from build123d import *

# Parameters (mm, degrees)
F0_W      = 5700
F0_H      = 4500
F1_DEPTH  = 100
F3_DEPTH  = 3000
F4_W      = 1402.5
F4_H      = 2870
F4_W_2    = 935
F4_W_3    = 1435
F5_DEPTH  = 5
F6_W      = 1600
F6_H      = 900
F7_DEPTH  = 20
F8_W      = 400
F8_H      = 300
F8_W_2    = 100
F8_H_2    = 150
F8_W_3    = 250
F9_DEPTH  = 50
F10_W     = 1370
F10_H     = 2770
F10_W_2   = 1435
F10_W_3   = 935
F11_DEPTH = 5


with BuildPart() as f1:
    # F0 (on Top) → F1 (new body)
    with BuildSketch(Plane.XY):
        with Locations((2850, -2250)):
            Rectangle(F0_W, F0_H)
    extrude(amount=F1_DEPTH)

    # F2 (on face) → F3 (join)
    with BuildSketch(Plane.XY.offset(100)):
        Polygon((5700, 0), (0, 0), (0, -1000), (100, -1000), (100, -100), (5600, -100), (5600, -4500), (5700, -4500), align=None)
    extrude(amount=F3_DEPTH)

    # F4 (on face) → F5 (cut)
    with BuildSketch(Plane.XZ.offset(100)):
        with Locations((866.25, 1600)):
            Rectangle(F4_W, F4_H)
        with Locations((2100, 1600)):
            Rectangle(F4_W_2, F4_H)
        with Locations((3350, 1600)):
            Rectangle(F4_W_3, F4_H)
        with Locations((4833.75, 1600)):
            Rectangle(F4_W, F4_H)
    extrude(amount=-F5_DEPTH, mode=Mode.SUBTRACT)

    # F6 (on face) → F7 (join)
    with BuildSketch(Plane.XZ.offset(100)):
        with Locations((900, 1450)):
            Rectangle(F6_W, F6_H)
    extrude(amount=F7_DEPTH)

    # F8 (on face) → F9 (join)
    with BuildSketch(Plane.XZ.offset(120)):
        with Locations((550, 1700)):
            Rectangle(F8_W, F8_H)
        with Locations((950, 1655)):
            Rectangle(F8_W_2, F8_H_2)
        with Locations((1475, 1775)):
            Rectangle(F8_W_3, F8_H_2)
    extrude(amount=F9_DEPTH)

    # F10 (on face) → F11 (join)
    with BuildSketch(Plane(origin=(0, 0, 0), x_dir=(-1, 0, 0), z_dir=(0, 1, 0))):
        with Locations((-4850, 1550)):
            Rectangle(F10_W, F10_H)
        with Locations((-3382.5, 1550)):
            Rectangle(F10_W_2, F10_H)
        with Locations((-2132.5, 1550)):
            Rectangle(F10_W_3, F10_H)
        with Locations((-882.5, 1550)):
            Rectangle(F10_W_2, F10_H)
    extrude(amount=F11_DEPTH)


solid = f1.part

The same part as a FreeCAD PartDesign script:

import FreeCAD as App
import Part
import Sketcher
from FreeCAD import Vector

doc = App.newDocument("Part")
body = doc.addObject("PartDesign::Body", "Body")

# Sketch on XY plane
sketch1 = body.newObject("Sketcher::SketchObject", "Sketch")
sketch1.AttachmentSupport = (doc.getObject("XY_Plane"), [""])
sketch1.MapMode = "FlatFace"
sketch1.addGeometry([
    Part.LineSegment(Vector(0, 0, 0), Vector(0, -4500, 0)),
    Part.LineSegment(Vector(0, -4500, 0), Vector(5700, -4500, 0)),
    Part.LineSegment(Vector(5700, -4500, 0), Vector(5700, 0, 0)),
    Part.LineSegment(Vector(5700, 0, 0), Vector(0, 0, 0)),
], False)
sketch1.addConstraint([
    Sketcher.Constraint("Coincident", 0, 2, 1, 1),
    Sketcher.Constraint("Coincident", 1, 2, 2, 1),
    Sketcher.Constraint("Coincident", 2, 2, 3, 1),
    Sketcher.Constraint("Coincident", 3, 2, 0, 1),
    Sketcher.Constraint("Vertical", 0),
    Sketcher.Constraint("Horizontal", 1),
    Sketcher.Constraint("Vertical", 2),
    Sketcher.Constraint("Horizontal", 3),
    Sketcher.Constraint("Coincident", 3, 2, -1, 1),
    Sketcher.Constraint("DistanceX", 1, 1, 1, 2, 5700.0),
    Sketcher.Constraint("DistanceY", 0, 2, 0, 1, 4500.0),
])
pad1 = body.newObject("PartDesign::Pad", "Pad")
pad1.Profile = sketch1
pad1.Length = 100

# Sketch on XY plane
sketch2 = body.newObject("Sketcher::SketchObject", "Sketch001")
sketch2.AttachmentSupport = (doc.getObject("XY_Plane"), [""])
sketch2.MapMode = "FlatFace"
sketch2.AttachmentOffset = App.Placement(Vector(0, 0, 100), App.Rotation())
sketch2.addGeometry([
    Part.LineSegment(Vector(5700, 0, 0), Vector(0, 0, 0)),  # 0
    Part.LineSegment(Vector(0, 0, 0), Vector(0, -1000, 0)),  # 1
    Part.LineSegment(Vector(0, -1000, 0), Vector(100, -1000, 0)),  # 2
    Part.LineSegment(Vector(100, -1000, 0), Vector(100, -100, 0)),  # 3
    Part.LineSegment(Vector(100, -100, 0), Vector(5600, -100, 0)),  # 4
    Part.LineSegment(Vector(5600, -100, 0), Vector(5600, -4500, 0)),  # 5
    Part.LineSegment(Vector(5600, -4500, 0), Vector(5700, -4500, 0)),  # 6
    Part.LineSegment(Vector(5700, -4500, 0), Vector(5700, 0, 0)),  # 7
], False)
sketch2.addConstraint([
    Sketcher.Constraint("Coincident", 0, 2, 1, 1),
    Sketcher.Constraint("Coincident", 1, 2, 2, 1),
    Sketcher.Constraint("Coincident", 2, 2, 3, 1),
    Sketcher.Constraint("Coincident", 3, 2, 4, 1),
    Sketcher.Constraint("Coincident", 4, 2, 5, 1),
    Sketcher.Constraint("Coincident", 5, 2, 6, 1),
    Sketcher.Constraint("Coincident", 6, 2, 7, 1),
    Sketcher.Constraint("Coincident", 7, 2, 0, 1),
    Sketcher.Constraint("Horizontal", 0),
    Sketcher.Constraint("Vertical", 1),
    Sketcher.Constraint("Horizontal", 2),
    Sketcher.Constraint("Vertical", 3),
    Sketcher.Constraint("Horizontal", 4),
    Sketcher.Constraint("Vertical", 5),
    Sketcher.Constraint("Horizontal", 6),
    Sketcher.Constraint("Vertical", 7),
    Sketcher.Constraint("Coincident", 0, 2, -1, 1),
    Sketcher.Constraint("Equal", 2, 6),
    Sketcher.Constraint("DistanceX", 0, 2, 0, 1, 5700.0),
    Sketcher.Constraint("DistanceX", 2, 1, 2, 2, 100.0),
    Sketcher.Constraint("DistanceY", 1, 2, 1, 1, 1000.0),
    Sketcher.Constraint("DistanceY", 3, 1, 3, 2, 900.0),
    Sketcher.Constraint("DistanceY", 5, 2, 5, 1, 4400.0),
])
pad2 = body.newObject("PartDesign::Pad", "Pad001")
pad2.Profile = sketch2
pad2.Length = 3000

# Sketch on XZ plane
sketch3 = body.newObject("Sketcher::SketchObject", "Sketch002")
sketch3.AttachmentSupport = (doc.getObject("XZ_Plane"), [""])
sketch3.MapMode = "FlatFace"
sketch3.AttachmentOffset = App.Placement(Vector(0, 0, 100), App.Rotation())
sketch3.addGeometry([
    Part.LineSegment(Vector(165, 3035, 0), Vector(165, 165, 0)),  # 0
    Part.LineSegment(Vector(165, 165, 0), Vector(1568, 165, 0)),  # 1
    Part.LineSegment(Vector(1568, 165, 0), Vector(1568, 3035, 0)),  # 2
    Part.LineSegment(Vector(1568, 3035, 0), Vector(165, 3035, 0)),  # 3
    Part.LineSegment(Vector(1632, 3035, 0), Vector(1632, 165, 0)),  # 4
    Part.LineSegment(Vector(1632, 165, 0), Vector(2568, 165, 0)),  # 5
    Part.LineSegment(Vector(2568, 165, 0), Vector(2568, 3035, 0)),  # 6
    Part.LineSegment(Vector(2568, 3035, 0), Vector(1632, 3035, 0)),  # 7
    Part.LineSegment(Vector(2632, 3035, 0), Vector(2632, 165, 0)),  # 8
    Part.LineSegment(Vector(2632, 165, 0), Vector(4068, 165, 0)),  # 9
    Part.LineSegment(Vector(4068, 165, 0), Vector(4068, 3035, 0)),  # 10
    Part.LineSegment(Vector(4068, 3035, 0), Vector(2632, 3035, 0)),  # 11
    Part.LineSegment(Vector(4132, 3035, 0), Vector(4132, 165, 0)),  # 12
    Part.LineSegment(Vector(4132, 165, 0), Vector(5535, 165, 0)),  # 13
    Part.LineSegment(Vector(5535, 165, 0), Vector(5535, 3035, 0)),  # 14
    Part.LineSegment(Vector(5535, 3035, 0), Vector(4132, 3035, 0)),  # 15
], False)
sketch3.addConstraint([
    Sketcher.Constraint("Coincident", 0, 2, 1, 1),
    Sketcher.Constraint("Coincident", 1, 2, 2, 1),
    Sketcher.Constraint("Coincident", 2, 2, 3, 1),
    Sketcher.Constraint("Coincident", 3, 2, 0, 1),
    Sketcher.Constraint("Coincident", 4, 2, 5, 1),
    Sketcher.Constraint("Coincident", 5, 2, 6, 1),
    Sketcher.Constraint("Coincident", 6, 2, 7, 1),
    Sketcher.Constraint("Coincident", 7, 2, 4, 1),
    Sketcher.Constraint("Coincident", 8, 2, 9, 1),
    Sketcher.Constraint("Coincident", 9, 2, 10, 1),
    Sketcher.Constraint("Coincident", 10, 2, 11, 1),
    Sketcher.Constraint("Coincident", 11, 2, 8, 1),
    Sketcher.Constraint("Coincident", 12, 2, 13, 1),
    Sketcher.Constraint("Coincident", 13, 2, 14, 1),
    Sketcher.Constraint("Coincident", 14, 2, 15, 1),
    Sketcher.Constraint("Coincident", 15, 2, 12, 1),
    Sketcher.Constraint("Vertical", 0),
    Sketcher.Constraint("Horizontal", 1),
    Sketcher.Constraint("Vertical", 2),
    Sketcher.Constraint("Horizontal", 3),
    Sketcher.Constraint("Vertical", 4),
    Sketcher.Constraint("Horizontal", 5),
    Sketcher.Constraint("Vertical", 6),
    Sketcher.Constraint("Horizontal", 7),
    Sketcher.Constraint("Vertical", 8),
    Sketcher.Constraint("Horizontal", 9),
    Sketcher.Constraint("Vertical", 10),
    Sketcher.Constraint("Horizontal", 11),
    Sketcher.Constraint("Vertical", 12),
    Sketcher.Constraint("Horizontal", 13),
    Sketcher.Constraint("Vertical", 14),
    Sketcher.Constraint("Horizontal", 15),
    Sketcher.Constraint("Horizontal", 1, 2, 4, 2),
    Sketcher.Constraint("Horizontal", 3, 2, 6, 2),
    Sketcher.Constraint("Horizontal", 5, 2, 8, 2),
    Sketcher.Constraint("Horizontal", 7, 2, 10, 2),
    Sketcher.Constraint("Horizontal", 9, 2, 12, 2),
    Sketcher.Constraint("Horizontal", 11, 2, 14, 2),
    Sketcher.Constraint("Equal", 3, 13),
    Sketcher.Constraint("DistanceX", 5, 1, 5, 2, 935.0),
    Sketcher.Constraint("DistanceX", 9, 1, 9, 2, 1435.0),
    Sketcher.Constraint("DistanceY", 0, 2, 0, 1, 2870.0),
    Sketcher.Constraint("DistanceX", 1, 1, 1, 2, 1402.5),
    Sketcher.Constraint("DistanceX", -1, 1, 0, 2, 165.0),
    Sketcher.Constraint("DistanceY", -1, 1, 0, 2, 165.0),
    Sketcher.Constraint("DistanceX", -1, 1, 13, 2, 5535.0),
    Sketcher.Constraint("DistanceX", 1, 2, 4, 2, 65.0),
    Sketcher.Constraint("DistanceX", 5, 2, 8, 2, 65.0),
])
pocket1 = body.newObject("PartDesign::Pocket", "Pocket")
pocket1.Profile = sketch3
pocket1.Length = 5

# Sketch on XZ plane
sketch4 = body.newObject("Sketcher::SketchObject", "Sketch003")
sketch4.AttachmentSupport = (doc.getObject("XZ_Plane"), [""])
sketch4.MapMode = "FlatFace"
sketch4.AttachmentOffset = App.Placement(Vector(0, 0, 100), App.Rotation())
sketch4.addGeometry([
    Part.LineSegment(Vector(100, 1900, 0), Vector(100, 1000, 0)),
    Part.LineSegment(Vector(100, 1000, 0), Vector(1700, 1000, 0)),
    Part.LineSegment(Vector(1700, 1000, 0), Vector(1700, 1900, 0)),
    Part.LineSegment(Vector(1700, 1900, 0), Vector(100, 1900, 0)),
], False)
sketch4.addConstraint([
    Sketcher.Constraint("Coincident", 0, 2, 1, 1),
    Sketcher.Constraint("Coincident", 1, 2, 2, 1),
    Sketcher.Constraint("Coincident", 2, 2, 3, 1),
    Sketcher.Constraint("Coincident", 3, 2, 0, 1),
    Sketcher.Constraint("Vertical", 0),
    Sketcher.Constraint("Horizontal", 1),
    Sketcher.Constraint("Vertical", 2),
    Sketcher.Constraint("Horizontal", 3),
    Sketcher.Constraint("DistanceX", 1, 1, 1, 2, 1600.0),
    Sketcher.Constraint("DistanceY", 0, 2, 0, 1, 900.0),
    Sketcher.Constraint("DistanceX", -1, 1, 0, 2, 100.0),
    Sketcher.Constraint("DistanceY", -1, 1, 0, 2, 1000.0),
])
pad3 = body.newObject("PartDesign::Pad", "Pad002")
pad3.Profile = sketch4
pad3.Length = 20

# Sketch on XZ plane
sketch5 = body.newObject("Sketcher::SketchObject", "Sketch004")
sketch5.AttachmentSupport = (doc.getObject("XZ_Plane"), [""])
sketch5.MapMode = "FlatFace"
sketch5.AttachmentOffset = App.Placement(Vector(0, 0, 120), App.Rotation())
sketch5.addGeometry([
    Part.LineSegment(Vector(350, 1850, 0), Vector(350, 1550, 0)),  # 0
    Part.LineSegment(Vector(350, 1550, 0), Vector(750, 1550, 0)),  # 1
    Part.LineSegment(Vector(750, 1550, 0), Vector(750, 1850, 0)),  # 2
    Part.LineSegment(Vector(750, 1850, 0), Vector(350, 1850, 0)),  # 3
    Part.LineSegment(Vector(900, 1730, 0), Vector(900, 1580, 0)),  # 4
    Part.LineSegment(Vector(900, 1580, 0), Vector(1000, 1580, 0)),  # 5
    Part.LineSegment(Vector(1000, 1580, 0), Vector(1000, 1730, 0)),  # 6
    Part.LineSegment(Vector(1000, 1730, 0), Vector(900, 1730, 0)),  # 7
    Part.LineSegment(Vector(1350, 1850, 0), Vector(1350, 1700, 0)),  # 8
    Part.LineSegment(Vector(1350, 1700, 0), Vector(1600, 1700, 0)),  # 9
    Part.LineSegment(Vector(1600, 1700, 0), Vector(1600, 1850, 0)),  # 10
    Part.LineSegment(Vector(1600, 1850, 0), Vector(1350, 1850, 0)),  # 11
], False)
sketch5.addConstraint([
    Sketcher.Constraint("Coincident", 0, 2, 1, 1),
    Sketcher.Constraint("Coincident", 1, 2, 2, 1),
    Sketcher.Constraint("Coincident", 2, 2, 3, 1),
    Sketcher.Constraint("Coincident", 3, 2, 0, 1),
    Sketcher.Constraint("Coincident", 4, 2, 5, 1),
    Sketcher.Constraint("Coincident", 5, 2, 6, 1),
    Sketcher.Constraint("Coincident", 6, 2, 7, 1),
    Sketcher.Constraint("Coincident", 7, 2, 4, 1),
    Sketcher.Constraint("Coincident", 8, 2, 9, 1),
    Sketcher.Constraint("Coincident", 9, 2, 10, 1),
    Sketcher.Constraint("Coincident", 10, 2, 11, 1),
    Sketcher.Constraint("Coincident", 11, 2, 8, 1),
    Sketcher.Constraint("Vertical", 0),
    Sketcher.Constraint("Horizontal", 1),
    Sketcher.Constraint("Vertical", 2),
    Sketcher.Constraint("Horizontal", 3),
    Sketcher.Constraint("Vertical", 4),
    Sketcher.Constraint("Horizontal", 5),
    Sketcher.Constraint("Vertical", 6),
    Sketcher.Constraint("Horizontal", 7),
    Sketcher.Constraint("Vertical", 8),
    Sketcher.Constraint("Horizontal", 9),
    Sketcher.Constraint("Vertical", 10),
    Sketcher.Constraint("Horizontal", 11),
    Sketcher.Constraint("Horizontal", 3, 2, 10, 2),
    Sketcher.Constraint("Equal", 6, 8),
    Sketcher.Constraint("DistanceX", 1, 1, 1, 2, 400.0),
    Sketcher.Constraint("DistanceX", 5, 1, 5, 2, 100.0),
    Sketcher.Constraint("DistanceX", 9, 1, 9, 2, 250.0),
    Sketcher.Constraint("DistanceY", 0, 2, 0, 1, 300.0),
    Sketcher.Constraint("DistanceY", 4, 2, 4, 1, 150.0),
    Sketcher.Constraint("DistanceX", -1, 1, 0, 2, 350.0),
    Sketcher.Constraint("DistanceY", -1, 1, 0, 2, 1550.0),
    Sketcher.Constraint("DistanceX", -1, 1, 4, 2, 900.0),
    Sketcher.Constraint("DistanceY", -1, 1, 4, 2, 1580.0),
    Sketcher.Constraint("DistanceX", -1, 1, 8, 2, 1350.0),
])
pad4 = body.newObject("PartDesign::Pad", "Pad003")
pad4.Profile = sketch5
pad4.Length = 50

# Sketch on XZ plane
sketch6 = body.newObject("Sketcher::SketchObject", "Sketch005")
sketch6.AttachmentSupport = (doc.getObject("XZ_Plane"), [""])
sketch6.MapMode = "FlatFace"
sketch6.addGeometry([
    Part.LineSegment(Vector(5535, 2935, 0), Vector(5535, 165, 0)),  # 0
    Part.LineSegment(Vector(5535, 165, 0), Vector(4165, 165, 0)),  # 1
    Part.LineSegment(Vector(4165, 165, 0), Vector(4165, 2935, 0)),  # 2
    Part.LineSegment(Vector(4165, 2935, 0), Vector(5535, 2935, 0)),  # 3
    Part.LineSegment(Vector(4100, 2935, 0), Vector(4100, 165, 0)),  # 4
    Part.LineSegment(Vector(4100, 165, 0), Vector(2665, 165, 0)),  # 5
    Part.LineSegment(Vector(2665, 165, 0), Vector(2665, 2935, 0)),  # 6
    Part.LineSegment(Vector(2665, 2935, 0), Vector(4100, 2935, 0)),  # 7
    Part.LineSegment(Vector(2600, 2935, 0), Vector(2600, 165, 0)),  # 8
    Part.LineSegment(Vector(2600, 165, 0), Vector(1665, 165, 0)),  # 9
    Part.LineSegment(Vector(1665, 165, 0), Vector(1665, 2935, 0)),  # 10
    Part.LineSegment(Vector(1665, 2935, 0), Vector(2600, 2935, 0)),  # 11
    Part.LineSegment(Vector(1600, 2935, 0), Vector(1600, 165, 0)),  # 12
    Part.LineSegment(Vector(1600, 165, 0), Vector(165, 165, 0)),  # 13
    Part.LineSegment(Vector(165, 165, 0), Vector(165, 2935, 0)),  # 14
    Part.LineSegment(Vector(165, 2935, 0), Vector(1600, 2935, 0)),  # 15
], False)
sketch6.addConstraint([
    Sketcher.Constraint("Coincident", 0, 2, 1, 1),
    Sketcher.Constraint("Coincident", 1, 2, 2, 1),
    Sketcher.Constraint("Coincident", 2, 2, 3, 1),
    Sketcher.Constraint("Coincident", 3, 2, 0, 1),
    Sketcher.Constraint("Coincident", 4, 2, 5, 1),
    Sketcher.Constraint("Coincident", 5, 2, 6, 1),
    Sketcher.Constraint("Coincident", 6, 2, 7, 1),
    Sketcher.Constraint("Coincident", 7, 2, 4, 1),
    Sketcher.Constraint("Coincident", 8, 2, 9, 1),
    Sketcher.Constraint("Coincident", 9, 2, 10, 1),
    Sketcher.Constraint("Coincident", 10, 2, 11, 1),
    Sketcher.Constraint("Coincident", 11, 2, 8, 1),
    Sketcher.Constraint("Coincident", 12, 2, 13, 1),
    Sketcher.Constraint("Coincident", 13, 2, 14, 1),
    Sketcher.Constraint("Coincident", 14, 2, 15, 1),
    Sketcher.Constraint("Coincident", 15, 2, 12, 1),
    Sketcher.Constraint("Vertical", 0),
    Sketcher.Constraint("Horizontal", 1),
    Sketcher.Constraint("Vertical", 2),
    Sketcher.Constraint("Horizontal", 3),
    Sketcher.Constraint("Vertical", 4),
    Sketcher.Constraint("Horizontal", 5),
    Sketcher.Constraint("Vertical", 6),
    Sketcher.Constraint("Horizontal", 7),
    Sketcher.Constraint("Vertical", 8),
    Sketcher.Constraint("Horizontal", 9),
    Sketcher.Constraint("Vertical", 10),
    Sketcher.Constraint("Horizontal", 11),
    Sketcher.Constraint("Vertical", 12),
    Sketcher.Constraint("Horizontal", 13),
    Sketcher.Constraint("Vertical", 14),
    Sketcher.Constraint("Horizontal", 15),
    Sketcher.Constraint("Horizontal", 1, 2, 4, 2),
    Sketcher.Constraint("Horizontal", 3, 2, 6, 2),
    Sketcher.Constraint("Horizontal", 5, 2, 8, 2),
    Sketcher.Constraint("Horizontal", 7, 2, 10, 2),
    Sketcher.Constraint("Horizontal", 9, 2, 12, 2),
    Sketcher.Constraint("Horizontal", 11, 2, 14, 2),
    Sketcher.Constraint("Equal", 7, 13),
    Sketcher.Constraint("DistanceX", 1, 2, 1, 1, 1370.0),
    Sketcher.Constraint("DistanceX", 5, 2, 5, 1, 1435.0),
    Sketcher.Constraint("DistanceX", 9, 2, 9, 1, 935.0),
    Sketcher.Constraint("DistanceY", 0, 2, 0, 1, 2770.0),
    Sketcher.Constraint("DistanceX", -1, 1, 0, 2, 5535.0),
    Sketcher.Constraint("DistanceY", -1, 1, 0, 2, 165.0),
    Sketcher.Constraint("DistanceX", -1, 1, 4, 2, 4100.0),
    Sketcher.Constraint("DistanceX", -1, 1, 8, 2, 2600.0),
    Sketcher.Constraint("DistanceX", -1, 1, 12, 2, 1600.0),
])
pad5 = body.newObject("PartDesign::Pad", "Pad004")
pad5.Profile = sketch6
pad5.Length = 5
pad5.Reversed = True

doc.recompute()
